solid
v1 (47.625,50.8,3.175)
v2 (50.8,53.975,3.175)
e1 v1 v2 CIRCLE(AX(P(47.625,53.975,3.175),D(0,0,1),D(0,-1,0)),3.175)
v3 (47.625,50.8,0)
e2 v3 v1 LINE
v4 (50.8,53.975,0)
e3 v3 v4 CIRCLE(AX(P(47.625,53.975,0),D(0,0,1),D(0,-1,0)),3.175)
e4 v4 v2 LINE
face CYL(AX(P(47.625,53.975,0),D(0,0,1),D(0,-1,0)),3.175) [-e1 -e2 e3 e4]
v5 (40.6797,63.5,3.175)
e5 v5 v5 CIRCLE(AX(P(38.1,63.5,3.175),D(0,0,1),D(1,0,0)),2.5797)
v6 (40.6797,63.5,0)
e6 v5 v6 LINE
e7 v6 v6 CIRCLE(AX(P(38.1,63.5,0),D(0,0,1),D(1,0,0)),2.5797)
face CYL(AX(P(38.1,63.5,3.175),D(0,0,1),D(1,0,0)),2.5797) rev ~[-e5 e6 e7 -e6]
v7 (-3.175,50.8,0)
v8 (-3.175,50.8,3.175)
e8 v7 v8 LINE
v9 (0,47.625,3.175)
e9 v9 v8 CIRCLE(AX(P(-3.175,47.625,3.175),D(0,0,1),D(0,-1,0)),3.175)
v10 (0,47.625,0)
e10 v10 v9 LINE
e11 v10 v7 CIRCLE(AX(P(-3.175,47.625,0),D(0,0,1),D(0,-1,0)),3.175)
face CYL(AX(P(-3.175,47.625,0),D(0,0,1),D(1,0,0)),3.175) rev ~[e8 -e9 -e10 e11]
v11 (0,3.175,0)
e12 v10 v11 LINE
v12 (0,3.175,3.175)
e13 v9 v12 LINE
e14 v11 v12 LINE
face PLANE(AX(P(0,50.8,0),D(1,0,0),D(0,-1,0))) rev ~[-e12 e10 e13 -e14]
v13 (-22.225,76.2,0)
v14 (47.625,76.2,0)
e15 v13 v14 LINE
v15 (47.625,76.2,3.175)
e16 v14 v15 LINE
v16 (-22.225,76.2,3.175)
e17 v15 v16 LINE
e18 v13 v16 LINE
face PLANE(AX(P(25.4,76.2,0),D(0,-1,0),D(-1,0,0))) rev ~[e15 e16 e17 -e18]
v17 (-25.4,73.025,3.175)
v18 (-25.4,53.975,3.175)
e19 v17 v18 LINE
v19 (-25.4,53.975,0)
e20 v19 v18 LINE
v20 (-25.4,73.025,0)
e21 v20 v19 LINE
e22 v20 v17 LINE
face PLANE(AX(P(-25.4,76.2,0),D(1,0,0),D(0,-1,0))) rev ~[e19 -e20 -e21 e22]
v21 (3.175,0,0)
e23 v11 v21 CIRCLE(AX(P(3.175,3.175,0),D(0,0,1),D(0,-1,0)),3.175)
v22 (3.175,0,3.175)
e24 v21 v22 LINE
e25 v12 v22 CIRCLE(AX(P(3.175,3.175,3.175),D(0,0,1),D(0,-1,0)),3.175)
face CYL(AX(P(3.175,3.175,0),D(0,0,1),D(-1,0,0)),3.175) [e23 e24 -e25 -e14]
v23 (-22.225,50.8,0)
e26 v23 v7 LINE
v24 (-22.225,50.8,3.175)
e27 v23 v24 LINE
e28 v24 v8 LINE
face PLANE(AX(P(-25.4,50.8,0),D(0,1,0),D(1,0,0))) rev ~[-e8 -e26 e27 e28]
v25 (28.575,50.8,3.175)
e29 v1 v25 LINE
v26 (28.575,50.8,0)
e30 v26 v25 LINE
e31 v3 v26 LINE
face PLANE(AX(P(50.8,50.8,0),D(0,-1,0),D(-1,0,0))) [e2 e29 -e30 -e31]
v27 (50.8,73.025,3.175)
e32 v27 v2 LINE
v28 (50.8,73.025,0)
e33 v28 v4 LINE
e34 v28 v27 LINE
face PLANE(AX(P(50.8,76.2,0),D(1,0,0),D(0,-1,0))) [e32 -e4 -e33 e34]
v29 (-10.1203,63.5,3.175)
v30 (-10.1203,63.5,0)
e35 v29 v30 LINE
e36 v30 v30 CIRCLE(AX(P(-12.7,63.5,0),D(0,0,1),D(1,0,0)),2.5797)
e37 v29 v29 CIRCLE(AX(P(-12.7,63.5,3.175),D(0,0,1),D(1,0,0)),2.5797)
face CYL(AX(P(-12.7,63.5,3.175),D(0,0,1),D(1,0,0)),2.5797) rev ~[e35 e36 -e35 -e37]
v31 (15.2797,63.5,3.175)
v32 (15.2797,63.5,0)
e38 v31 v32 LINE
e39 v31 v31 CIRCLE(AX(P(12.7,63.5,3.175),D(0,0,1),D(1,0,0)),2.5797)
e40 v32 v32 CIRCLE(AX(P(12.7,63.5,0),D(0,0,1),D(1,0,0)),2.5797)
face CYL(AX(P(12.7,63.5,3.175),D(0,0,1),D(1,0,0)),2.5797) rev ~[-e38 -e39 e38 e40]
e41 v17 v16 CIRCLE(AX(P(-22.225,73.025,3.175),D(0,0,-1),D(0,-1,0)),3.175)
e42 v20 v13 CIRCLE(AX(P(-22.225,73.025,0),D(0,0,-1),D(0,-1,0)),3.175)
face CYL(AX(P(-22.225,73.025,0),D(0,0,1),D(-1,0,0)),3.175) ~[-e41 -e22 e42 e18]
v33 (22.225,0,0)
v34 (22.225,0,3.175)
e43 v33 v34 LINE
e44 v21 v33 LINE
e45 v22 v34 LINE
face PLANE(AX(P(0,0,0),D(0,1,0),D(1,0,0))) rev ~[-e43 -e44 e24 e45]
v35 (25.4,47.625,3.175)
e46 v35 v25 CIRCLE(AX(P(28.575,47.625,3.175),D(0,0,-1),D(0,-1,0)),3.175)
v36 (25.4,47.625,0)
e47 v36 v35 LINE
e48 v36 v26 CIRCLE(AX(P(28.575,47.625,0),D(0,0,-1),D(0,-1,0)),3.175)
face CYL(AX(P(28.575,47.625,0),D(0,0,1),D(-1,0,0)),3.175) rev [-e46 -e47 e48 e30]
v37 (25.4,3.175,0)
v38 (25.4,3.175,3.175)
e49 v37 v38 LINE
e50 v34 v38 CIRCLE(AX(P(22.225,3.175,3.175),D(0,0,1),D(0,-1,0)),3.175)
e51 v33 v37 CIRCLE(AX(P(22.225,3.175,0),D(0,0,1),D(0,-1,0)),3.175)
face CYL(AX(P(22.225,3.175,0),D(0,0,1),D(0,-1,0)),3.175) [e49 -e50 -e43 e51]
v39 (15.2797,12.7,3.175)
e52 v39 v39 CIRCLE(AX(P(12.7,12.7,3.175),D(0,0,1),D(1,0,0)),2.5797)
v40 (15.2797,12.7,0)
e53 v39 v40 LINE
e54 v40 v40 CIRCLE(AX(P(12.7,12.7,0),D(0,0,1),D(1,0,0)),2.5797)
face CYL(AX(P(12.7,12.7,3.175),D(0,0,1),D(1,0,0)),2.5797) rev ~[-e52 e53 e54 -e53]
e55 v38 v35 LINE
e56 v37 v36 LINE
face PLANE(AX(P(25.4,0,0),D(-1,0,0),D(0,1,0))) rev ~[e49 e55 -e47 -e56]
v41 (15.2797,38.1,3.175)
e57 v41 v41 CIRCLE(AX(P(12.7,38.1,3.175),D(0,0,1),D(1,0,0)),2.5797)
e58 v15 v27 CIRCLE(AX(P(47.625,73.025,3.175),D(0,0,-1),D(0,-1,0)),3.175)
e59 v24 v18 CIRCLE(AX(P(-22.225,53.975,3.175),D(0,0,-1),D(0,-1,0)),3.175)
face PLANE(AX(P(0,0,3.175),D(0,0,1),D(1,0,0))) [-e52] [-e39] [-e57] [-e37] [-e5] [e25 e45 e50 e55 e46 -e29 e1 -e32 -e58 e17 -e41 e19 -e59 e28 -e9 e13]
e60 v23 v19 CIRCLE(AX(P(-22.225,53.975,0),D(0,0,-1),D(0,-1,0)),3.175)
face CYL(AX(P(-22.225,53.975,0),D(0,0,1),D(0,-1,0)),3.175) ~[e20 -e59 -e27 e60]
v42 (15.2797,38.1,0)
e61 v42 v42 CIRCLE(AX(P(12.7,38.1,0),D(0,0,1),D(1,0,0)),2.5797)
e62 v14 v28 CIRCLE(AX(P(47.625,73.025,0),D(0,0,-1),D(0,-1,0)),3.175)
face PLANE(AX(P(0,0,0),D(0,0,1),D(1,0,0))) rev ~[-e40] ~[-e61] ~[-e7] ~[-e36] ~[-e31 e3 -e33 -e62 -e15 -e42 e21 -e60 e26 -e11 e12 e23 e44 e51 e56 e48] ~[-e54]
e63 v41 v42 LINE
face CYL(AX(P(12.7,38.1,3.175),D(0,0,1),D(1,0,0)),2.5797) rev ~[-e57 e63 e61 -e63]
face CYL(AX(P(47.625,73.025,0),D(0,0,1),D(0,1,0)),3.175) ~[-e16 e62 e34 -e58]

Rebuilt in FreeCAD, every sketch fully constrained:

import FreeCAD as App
import Part
import Sketcher
from FreeCAD import Vector
Q = App.Units.Quantity


def edges_at(feature, points):
    """Names of the edges that pass closest to the given points."""
    edges = feature.Shape.Edges
    near = lambda p: min(range(len(edges)), key=lambda i: edges[i].distToShape(Part.Vertex(*p))[0])
    return sorted({f"Edge{near(p) + 1}" for p in points})


def add_polygon(sketch, points):
    """Adds a closed chain of lines whose ends are joined by coincident constraints."""
    first, n = sketch.GeometryCount, len(points)
    for a, b in zip(points, points[1:] + points[:1]):
        sketch.addGeometry(Part.LineSegment(App.Vector(*a, 0), App.Vector(*b, 0)), False)
    for i in range(n):
        sketch.addConstraint(Sketcher.Constraint("Coincident", first + i, 2, first + (i + 1) % n, 1))

doc = App.newDocument("Part")
params = doc.addObject("Spreadsheet::Sheet", "Params")
for row, (alias, value) in enumerate([
    ("sketch1_width", "1 in"),
    ("pad1_length", "0.125 in"),
    ("sketch2_diameter", "0.203126 in"),
    ("pocket1_length", "0.125 in"),
    ("fillet_radius", "0.125 in"),
], start=1):
    params.set(f"A{row}", alias)
    params.set(f"B{row}", "=" + value)
    params.setAlias(f"B{row}", alias)

body = doc.addObject("PartDesign::Body", "Body")

sketch1 = doc.addObject("Sketcher::SketchObject", "Sketch")
body.addObject(sketch1)
sketch1.AttachmentSupport = (doc.XY_Plane, [""])
sketch1.MapMode = "FlatFace"
add_polygon(sketch1, [(0, 51), (0, 0), (25, 0), (25, 51), (51, 51), (51, 76), (-25, 76), (-25, 51)])
sketch1.addConstraint(Sketcher.Constraint("Vertical", 0))
sketch1.addConstraint(Sketcher.Constraint("Horizontal", 1))
sketch1.addConstraint(Sketcher.Constraint("Vertical", 2))
sketch1.addConstraint(Sketcher.Constraint("Horizontal", 3))
sketch1.addConstraint(Sketcher.Constraint("Vertical", 4))
sketch1.addConstraint(Sketcher.Constraint("Horizontal", 5))
sketch1.addConstraint(Sketcher.Constraint("Vertical", 6))
sketch1.addConstraint(Sketcher.Constraint("Horizontal", 7))
sketch1.addConstraint(Sketcher.Constraint("Coincident", 0, 2, -1, 1))
sketch1.addConstraint(Sketcher.Constraint("Symmetric", 2, 2, 6, 2, -2))
sketch1.addConstraint(Sketcher.Constraint("Equal", 1, 3))
sketch1.addConstraint(Sketcher.Constraint("Equal", 7, 4))
sketch1.addConstraint(Sketcher.Constraint("DistanceX", 1, 1, 1, 2, Q("1 in")))
sketch1.addConstraint(Sketcher.Constraint("DistanceY", -1, 1, 4, 2, Q("3 in")))
sketch1.setExpression("Constraints[20]", "Params.sketch1_width")
pad1 = doc.addObject("PartDesign::Pad", "Pad")
body.addObject(pad1)
pad1.Profile = sketch1
pad1.setExpression("Length", "Params.pad1_length")

sketch2 = doc.addObject("Sketcher::SketchObject", "Sketch001")
body.addObject(sketch2)
sketch2.AttachmentSupport = (doc.XY_Plane, [""])
sketch2.MapMode = "FlatFace"
sketch2.AttachmentOffset = App.Placement(Vector(0, 0, 0.125 * 25.4), App.Rotation())
sketch2.addGeometry(Part.Circle(Vector(-12.7, 63.5, 0), Vector(0, 0, 1), 2.6), False)
sketch2.addGeometry(Part.Circle(Vector(12.7, 63.5, 0), Vector(0, 0, 1), 2.6), False)
sketch2.addGeometry(Part.Circle(Vector(38.1, 63.5, 0), Vector(0, 0, 1), 2.6), False)
sketch2.addGeometry(Part.Circle(Vector(12.7, 38.1, 0), Vector(0, 0, 1), 2.6), False)
sketch2.addGeometry(Part.Circle(Vector(12.7, 12.7, 0), Vector(0, 0, 1), 2.6), False)
sketch2.addConstraint(Sketcher.Constraint("Equal", 0, 1))
sketch2.addConstraint(Sketcher.Constraint("Equal", 1, 2))
sketch2.addConstraint(Sketcher.Constraint("Equal", 2, 3))
sketch2.addConstraint(Sketcher.Constraint("Equal", 3, 4))
sketch2.addConstraint(Sketcher.Constraint("Symmetric", 0, 3, 1, 3, -2))
sketch2.addConstraint(Sketcher.Constraint("Horizontal", 1, 3, 2, 3))
sketch2.addConstraint(Sketcher.Constraint("Vertical", 1, 3, 3, 3))
sketch2.addConstraint(Sketcher.Constraint("Vertical", 3, 3, 4, 3))
sketch2.addConstraint(Sketcher.Constraint("Diameter", 0, Q("0.203126 in")))
sketch2.addConstraint(Sketcher.Constraint("DistanceX", 0, 3, 1, 3, Q("1 in")))
sketch2.addConstraint(Sketcher.Constraint("DistanceX", 1, 3, 2, 3, Q("1 in")))
sketch2.addConstraint(Sketcher.Constraint("DistanceY", 3, 3, 1, 3, Q("1 in")))
sketch2.addConstraint(Sketcher.Constraint("DistanceY", 4, 3, 3, 3, Q("1 in")))
sketch2.addConstraint(Sketcher.Constraint("DistanceY", -1, 1, 4, 3, Q("0.5 in")))
sketch2.setExpression("Constraints[8]", "Params.sketch2_diameter")
pocket1 = doc.addObject("PartDesign::Pocket", "Pocket")
body.addObject(pocket1)
pocket1.Profile = sketch2
pocket1.setExpression("Length", "Params.pocket1_length")
doc.recompute()

fillet = doc.addObject("PartDesign::Fillet", "Fillet")
body.addObject(fillet)
fillet.Base = (pocket1, edges_at(pocket1, [
    (50.8, 76.2, 1.587),
    (50.8, 50.8, 1.587),
    (25.4, 50.8, 1.587),
    (25.4, 0, 1.587),
    (0, 0, 1.587),
    (0, 50.8, 1.587),
    (-25.4, 50.8, 1.587),
    (-25.4, 76.2, 1.587),
]))
fillet.setExpression("Radius", "Params.fillet_radius")

doc.recompute()
